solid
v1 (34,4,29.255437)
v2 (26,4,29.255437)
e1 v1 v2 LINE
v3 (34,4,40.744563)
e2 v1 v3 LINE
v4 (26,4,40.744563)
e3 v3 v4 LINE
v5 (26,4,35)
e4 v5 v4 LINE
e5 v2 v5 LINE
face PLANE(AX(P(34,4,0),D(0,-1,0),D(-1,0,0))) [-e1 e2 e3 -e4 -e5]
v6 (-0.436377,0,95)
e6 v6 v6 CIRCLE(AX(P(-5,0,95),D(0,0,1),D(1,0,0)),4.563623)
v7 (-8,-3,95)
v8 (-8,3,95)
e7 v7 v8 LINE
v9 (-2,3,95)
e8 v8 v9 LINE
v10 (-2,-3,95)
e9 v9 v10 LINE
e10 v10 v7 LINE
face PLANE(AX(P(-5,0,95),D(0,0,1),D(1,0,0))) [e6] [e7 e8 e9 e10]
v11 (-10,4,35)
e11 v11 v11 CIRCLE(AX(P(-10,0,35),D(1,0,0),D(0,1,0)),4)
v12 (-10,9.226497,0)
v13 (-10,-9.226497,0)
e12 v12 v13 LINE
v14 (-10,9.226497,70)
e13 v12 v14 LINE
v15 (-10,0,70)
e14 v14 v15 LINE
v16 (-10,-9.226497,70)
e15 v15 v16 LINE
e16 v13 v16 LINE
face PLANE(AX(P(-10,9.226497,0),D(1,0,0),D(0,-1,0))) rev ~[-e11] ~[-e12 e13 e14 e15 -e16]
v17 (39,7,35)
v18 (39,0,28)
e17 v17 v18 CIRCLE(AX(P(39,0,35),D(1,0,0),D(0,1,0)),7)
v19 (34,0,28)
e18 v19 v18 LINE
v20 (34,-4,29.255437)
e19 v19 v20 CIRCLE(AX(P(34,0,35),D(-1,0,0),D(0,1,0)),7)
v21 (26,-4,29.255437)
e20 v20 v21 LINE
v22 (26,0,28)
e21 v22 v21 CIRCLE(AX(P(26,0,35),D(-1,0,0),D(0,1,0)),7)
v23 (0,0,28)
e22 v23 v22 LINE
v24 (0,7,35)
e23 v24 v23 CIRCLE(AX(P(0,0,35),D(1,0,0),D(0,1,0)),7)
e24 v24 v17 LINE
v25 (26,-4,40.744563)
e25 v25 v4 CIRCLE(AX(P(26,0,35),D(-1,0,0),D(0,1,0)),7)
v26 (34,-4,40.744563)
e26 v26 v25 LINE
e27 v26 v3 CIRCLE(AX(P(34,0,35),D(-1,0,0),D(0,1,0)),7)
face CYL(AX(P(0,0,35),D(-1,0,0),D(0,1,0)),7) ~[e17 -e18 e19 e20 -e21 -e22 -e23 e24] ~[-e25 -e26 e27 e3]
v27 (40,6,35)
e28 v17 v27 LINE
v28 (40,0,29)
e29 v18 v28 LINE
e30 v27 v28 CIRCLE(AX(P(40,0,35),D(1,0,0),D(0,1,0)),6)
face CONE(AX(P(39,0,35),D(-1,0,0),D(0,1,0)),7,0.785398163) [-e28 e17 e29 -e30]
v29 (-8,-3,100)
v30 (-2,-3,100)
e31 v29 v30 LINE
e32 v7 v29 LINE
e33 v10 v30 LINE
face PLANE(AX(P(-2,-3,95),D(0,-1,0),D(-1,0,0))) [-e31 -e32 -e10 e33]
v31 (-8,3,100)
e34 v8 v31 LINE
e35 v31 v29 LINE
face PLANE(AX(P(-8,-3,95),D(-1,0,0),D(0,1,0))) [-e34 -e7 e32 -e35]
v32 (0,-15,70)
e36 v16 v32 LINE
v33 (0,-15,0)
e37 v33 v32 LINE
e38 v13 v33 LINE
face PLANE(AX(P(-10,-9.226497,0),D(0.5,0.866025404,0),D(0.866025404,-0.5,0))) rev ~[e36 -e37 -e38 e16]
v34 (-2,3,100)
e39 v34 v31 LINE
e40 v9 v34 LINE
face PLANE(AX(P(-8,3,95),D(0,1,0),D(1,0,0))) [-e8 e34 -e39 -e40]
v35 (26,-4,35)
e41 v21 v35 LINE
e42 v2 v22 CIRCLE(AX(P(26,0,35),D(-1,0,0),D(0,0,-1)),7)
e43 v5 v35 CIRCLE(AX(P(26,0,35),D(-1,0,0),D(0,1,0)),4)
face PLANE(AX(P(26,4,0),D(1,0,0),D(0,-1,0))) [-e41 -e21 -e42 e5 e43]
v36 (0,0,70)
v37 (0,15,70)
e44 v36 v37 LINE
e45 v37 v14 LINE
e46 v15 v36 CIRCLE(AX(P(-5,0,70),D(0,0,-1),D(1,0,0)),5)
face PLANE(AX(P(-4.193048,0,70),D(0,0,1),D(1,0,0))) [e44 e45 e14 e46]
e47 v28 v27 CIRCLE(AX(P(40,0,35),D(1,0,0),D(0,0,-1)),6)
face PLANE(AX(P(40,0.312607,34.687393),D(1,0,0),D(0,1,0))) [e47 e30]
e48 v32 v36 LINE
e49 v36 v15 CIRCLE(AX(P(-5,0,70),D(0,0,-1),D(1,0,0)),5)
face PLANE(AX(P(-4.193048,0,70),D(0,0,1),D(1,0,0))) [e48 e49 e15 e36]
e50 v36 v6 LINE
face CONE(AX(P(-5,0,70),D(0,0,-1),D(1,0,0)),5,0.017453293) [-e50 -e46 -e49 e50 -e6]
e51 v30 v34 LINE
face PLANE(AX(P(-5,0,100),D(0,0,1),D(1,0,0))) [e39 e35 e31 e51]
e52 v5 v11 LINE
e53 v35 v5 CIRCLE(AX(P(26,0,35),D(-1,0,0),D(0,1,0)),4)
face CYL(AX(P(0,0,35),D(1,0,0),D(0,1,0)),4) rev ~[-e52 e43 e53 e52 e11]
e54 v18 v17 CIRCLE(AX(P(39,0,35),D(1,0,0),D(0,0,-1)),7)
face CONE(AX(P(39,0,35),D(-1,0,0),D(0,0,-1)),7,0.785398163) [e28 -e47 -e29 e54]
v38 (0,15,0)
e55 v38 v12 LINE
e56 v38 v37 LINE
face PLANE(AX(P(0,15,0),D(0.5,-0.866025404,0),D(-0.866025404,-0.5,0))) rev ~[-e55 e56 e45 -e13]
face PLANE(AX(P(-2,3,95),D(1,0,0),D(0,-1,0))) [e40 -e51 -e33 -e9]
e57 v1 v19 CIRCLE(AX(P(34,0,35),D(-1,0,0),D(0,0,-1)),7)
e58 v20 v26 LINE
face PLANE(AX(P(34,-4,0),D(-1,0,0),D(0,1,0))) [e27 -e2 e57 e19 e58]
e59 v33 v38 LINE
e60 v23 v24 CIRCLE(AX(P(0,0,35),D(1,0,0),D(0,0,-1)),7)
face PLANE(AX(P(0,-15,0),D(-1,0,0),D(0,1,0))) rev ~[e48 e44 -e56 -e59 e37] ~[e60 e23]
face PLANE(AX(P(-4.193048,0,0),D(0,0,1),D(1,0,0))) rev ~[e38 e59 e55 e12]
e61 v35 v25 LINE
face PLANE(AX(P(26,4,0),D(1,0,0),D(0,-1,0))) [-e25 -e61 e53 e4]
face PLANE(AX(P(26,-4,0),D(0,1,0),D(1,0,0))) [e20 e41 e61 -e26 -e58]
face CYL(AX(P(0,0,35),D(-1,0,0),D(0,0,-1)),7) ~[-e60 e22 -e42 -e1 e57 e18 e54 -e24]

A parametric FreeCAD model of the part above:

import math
import FreeCAD as App
import Part
import Sketcher
Q = App.Units.Quantity


def edges_at(feature, points):
    """Names of the edges that pass closest to the given points."""
    edges = feature.Shape.Edges
    near = lambda p: min(range(len(edges)), key=lambda i: edges[i].distToShape(Part.Vertex(*p))[0])
    return sorted({f"Edge{near(p) + 1}" for p in points})


def add_polygon(sketch, points):
    """Adds a closed chain of lines whose ends are joined by coincident constraints."""
    first, n = sketch.GeometryCount, len(points)
    for a, b in zip(points, points[1:] + points[:1]):
        sketch.addGeometry(Part.LineSegment(App.Vector(*a, 0), App.Vector(*b, 0)), False)
    for i in range(n):
        sketch.addConstraint(Sketcher.Constraint("Coincident", first + i, 2, first + (i + 1) % n, 1))

doc = App.newDocument("Part")
params = doc.addObject("Spreadsheet::Sheet", "Params")
for row, (alias, value) in enumerate([
    ("sketch1_height", "30 mm"),
    ("pad1_length", "70 mm"),
    ("sketch2_radius", "7 mm"),
    ("pad2_length", "40 mm"),
    ("chamfer_size", "1 mm"),
    ("sketch3_width", "8 mm"),
    ("sketch4_diameter", "8 mm"),
    ("pocket2_length", "30 mm"),
    ("pocket2_length2", "25 mm"),
    ("sketch5_diameter", "10 mm"),
    ("pad3_length", "30 mm"),
    ("pad3_taper", "-1 deg"),
    ("sketch6_width", "6 mm"),
    ("pocket3_length", "15 mm"),
], start=1):
    params.set(f"A{row}", alias)
    params.set(f"B{row}", "=" + value)
    params.setAlias(f"B{row}", alias)

body = doc.addObject("PartDesign::Body", "Body")

# Sketch on XY plane
sketch1 = body.newObject("Sketcher::SketchObject", "Sketch")
sketch1.AttachmentSupport = (doc.getObject("XY_Plane"), [""])
sketch1.MapMode = "FlatFace"
add_polygon(sketch1, [(0, -15), (0, 15), (-10, 9), (-10, -9)])  # lines 0-3
sketch1.addConstraint([
    Sketcher.Constraint("Vertical", 0),
    Sketcher.Constraint("Vertical", 2),
    Sketcher.Constraint("Symmetric", 0, 2, 3, 2, -1, 1),
    Sketcher.Constraint("Equal", 1, 3),
    Sketcher.Constraint("DistanceY", 0, 1, 0, 2, 30.0),
    Sketcher.Constraint("Angle", 1, Q("-150 deg")),
    Sketcher.Constraint("DistanceX", 1, 2, -1, 1, 10.0),
])
sketch1.setExpression("Constraints[8]", "Params.sketch1_height")
pad1 = body.newObject("PartDesign::Pad", "Pad")
pad1.Profile = sketch1
pad1.setExpression("Length", "Params.pad1_length")

# Sketch on YZ plane
sketch2 = body.newObject("Sketcher::SketchObject", "Sketch001")
sketch2.AttachmentSupport = (doc.getObject("YZ_Plane"), [""])
sketch2.MapMode = "FlatFace"
sketch2.addGeometry([
    Part.ArcOfCircle(Part.Circle(App.Vector(0, 35, 0), App.Vector(0, 0, 1), 7), math.radians(0), math.radians(270)),
    Part.ArcOfCircle(Part.Circle(App.Vector(0, 35, 0), App.Vector(0, 0, 1), 7), math.radians(-90), math.radians(0)),
], False)
sketch2.addConstraint([
    Sketcher.Constraint("Tangent", 0, 1, 1, 2),
    Sketcher.Constraint("Coincident", 1, 1, 0, 2),
    Sketcher.Constraint("PointOnObject", 0, 3, -2),
    Sketcher.Constraint("PointOnObject", 1, 1, -2),
    Sketcher.Constraint("Horizontal", 1, 3, 0, 1),
    Sketcher.Constraint("Radius", 0, 7.0),
    Sketcher.Constraint("DistanceY", -1, 1, 0, 3, 35.0),
])
sketch2.setExpression("Constraints[5]", "Params.sketch2_radius")
pad2 = body.newObject("PartDesign::Pad", "Pad001")
pad2.Profile = sketch2
pad2.setExpression("Length", "Params.pad2_length")
doc.recompute()

chamfer = body.newObject("PartDesign::Chamfer", "Chamfer")
chamfer.Base = (pad2, edges_at(pad2, [(40, -4.95, 39.95)]))
chamfer.setExpression("Size", "Params.chamfer_size")

# Sketch on XY plane
sketch3 = body.newObject("Sketcher::SketchObject", "Sketch002")
sketch3.AttachmentSupport = (doc.getObject("XY_Plane"), [""])
sketch3.MapMode = "FlatFace"
add_polygon(sketch3, [(26, -4), (34, -4), (34, 4), (26, 4)])  # lines 0-3
sketch3.addConstraint([
    Sketcher.Constraint("Horizontal", 0),
    Sketcher.Constraint("Vertical", 1),
    Sketcher.Constraint("Horizontal", 2),
    Sketcher.Constraint("Vertical", 3),
    Sketcher.Constraint("Equal", 2, 1),
    Sketcher.Constraint("DistanceX", 0, 1, 0, 2, 8.0),
    Sketcher.Constraint("DistanceX", -1, 1, 0, 2, 34.0),
    Sketcher.Constraint("DistanceY", 0, 2, -1, 1, 4.0),
])
sketch3.setExpression("Constraints[9]", "Params.sketch3_width")
pocket1 = body.newObject("PartDesign::Pocket", "Pocket")
pocket1.Profile = sketch3
pocket1.Type = "ThroughAll"
pocket1.Midplane = True

# Sketch on YZ plane
sketch4 = body.newObject("Sketcher::SketchObject", "Sketch003")
sketch4.AttachmentSupport = (doc.getObject("YZ_Plane"), [""])
sketch4.MapMode = "FlatFace"
sketch4.addGeometry(Part.Circle(App.Vector(0, 35, 0), App.Vector(0, 0, 1), 4), False)
sketch4.addConstraint([
    Sketcher.Constraint("PointOnObject", 0, 3, -2),
    Sketcher.Constraint("Diameter", 0, 8.0),
    Sketcher.Constraint("DistanceY", -1, 1, 0, 3, 35.0),
])
sketch4.setExpression("Constraints[1]", "Params.sketch4_diameter")
pocket2 = body.newObject("PartDesign::Pocket", "Pocket001")
pocket2.Profile = sketch4
pocket2.Type = "TwoLengths"
pocket2.setExpression("Length", "Params.pocket2_length")
pocket2.setExpression("Length2", "Params.pocket2_length2")
pocket2.Reversed = True

# Sketch on XY plane
sketch5 = body.newObject("Sketcher::SketchObject", "Sketch004")
sketch5.AttachmentSupport = (doc.getObject("XY_Plane"), [""])
sketch5.MapMode = "FlatFace"
sketch5.AttachmentOffset = App.Placement(App.Vector(0, 0, 70), App.Rotation())
sketch5.addGeometry(Part.Circle(App.Vector(-5, 0, 0), App.Vector(0, 0, 1), 5), False)
sketch5.addConstraint([
    Sketcher.Constraint("PointOnObject", 0, 3, -1),
    Sketcher.Constraint("Diameter", 0, 10.0),
    Sketcher.Constraint("DistanceX", 0, 3, -1, 1, 5.0),
])
sketch5.setExpression("Constraints[1]", "Params.sketch5_diameter")
pad3 = body.newObject("PartDesign::Pad", "Pad002")
pad3.Profile = sketch5
pad3.setExpression("Length", "Params.pad3_length")
pad3.setExpression("TaperAngle", "Params.pad3_taper")

# Sketch on XY plane
sketch6 = body.newObject("Sketcher::SketchObject", "Sketch005")
sketch6.AttachmentSupport = (doc.getObject("XY_Plane"), [""])
sketch6.MapMode = "FlatFace"
sketch6.AttachmentOffset = App.Placement(App.Vector(0, 0, 95), App.Rotation())
sketch6.addGeometry(Part.Circle(App.Vector(-5, 0, 0), App.Vector(0, 0, 1), 21), False)  # 0
add_polygon(sketch6, [(-2, 3), (-2, -3), (-8, -3), (-8, 3)])  # lines 1-4
sketch6.addConstraint([
    Sketcher.Constraint("Vertical", 1),
    Sketcher.Constraint("Horizontal", 2),
    Sketcher.Constraint("Vertical", 3),
    Sketcher.Constraint("Horizontal", 4),
    Sketcher.Constraint("PointOnObject", 0, 3, -1),
    Sketcher.Constraint("Equal", 4, 1),
    Sketcher.Constraint("DistanceX", 2, 2, 2, 1, 6.0),
    Sketcher.Constraint("DistanceX", 0, 3, -1, 1, 5.0),
    Sketcher.Constraint("DistanceX", 1, 2, -1, 1, 2.0),
    Sketcher.Constraint("DistanceY", 1, 2, -1, 1, 3.0),
    Sketcher.Constraint("Diameter", 0, 42.029396),
])
sketch6.setExpression("Constraints[10]", "Params.sketch6_width")
pocket3 = body.newObject("PartDesign::Pocket", "Pocket002")
pocket3.Profile = sketch6
pocket3.setExpression("Length", "Params.pocket3_length")
pocket3.Reversed = True

doc.recompute()
